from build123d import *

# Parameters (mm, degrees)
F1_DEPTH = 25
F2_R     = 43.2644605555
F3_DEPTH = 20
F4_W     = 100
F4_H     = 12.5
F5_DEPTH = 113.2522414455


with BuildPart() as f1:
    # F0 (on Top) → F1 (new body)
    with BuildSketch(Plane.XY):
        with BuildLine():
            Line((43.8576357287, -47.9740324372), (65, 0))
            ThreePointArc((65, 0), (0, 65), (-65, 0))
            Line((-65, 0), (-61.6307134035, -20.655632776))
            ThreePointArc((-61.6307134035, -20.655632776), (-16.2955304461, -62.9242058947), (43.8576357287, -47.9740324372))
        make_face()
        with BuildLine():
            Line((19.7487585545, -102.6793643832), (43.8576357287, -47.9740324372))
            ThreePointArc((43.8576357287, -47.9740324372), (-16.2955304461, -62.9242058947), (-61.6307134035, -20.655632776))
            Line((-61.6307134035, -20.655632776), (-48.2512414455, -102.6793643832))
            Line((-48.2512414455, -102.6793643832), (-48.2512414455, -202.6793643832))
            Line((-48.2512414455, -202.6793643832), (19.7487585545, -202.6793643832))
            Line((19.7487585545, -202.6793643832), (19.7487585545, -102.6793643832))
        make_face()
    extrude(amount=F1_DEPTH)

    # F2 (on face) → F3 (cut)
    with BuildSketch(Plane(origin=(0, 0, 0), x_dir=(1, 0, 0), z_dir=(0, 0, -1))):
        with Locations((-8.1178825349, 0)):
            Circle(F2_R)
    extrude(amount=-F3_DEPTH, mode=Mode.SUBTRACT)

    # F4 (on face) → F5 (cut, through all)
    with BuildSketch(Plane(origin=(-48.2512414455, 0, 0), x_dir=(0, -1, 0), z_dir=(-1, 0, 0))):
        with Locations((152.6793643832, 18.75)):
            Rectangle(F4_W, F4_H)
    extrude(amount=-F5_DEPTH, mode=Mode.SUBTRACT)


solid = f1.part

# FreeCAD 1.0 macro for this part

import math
import FreeCAD as App
import Part
import Sketcher
from FreeCAD import Vector
Q = App.Units.Quantity

doc = App.newDocument("Part")
body = doc.addObject("PartDesign::Body", "Body")

# Sketch on XY plane
sketch1 = body.newObject("Sketcher::SketchObject", "Sketch")
sketch1.AttachmentSupport = (doc.getObject("XY_Plane"), [""])
sketch1.MapMode = "FlatFace"
sketch1.addGeometry(Part.LineSegment(Vector(43.857636, -47.974032, 0), Vector(65, 0, 0)), False)
sketch1.addGeometry(Part.ArcOfCircle(Part.Circle(Vector(0, 0, 0), Vector(0, 0, 1), 65), math.radians(0), math.radians(180)), False)
sketch1.addGeometry(Part.LineSegment(Vector(-65, 0, 0), Vector(-61.630713, -20.655633, 0)), False)
sketch1.addGeometry(Part.LineSegment(Vector(-61.630713, -20.655633, 0), Vector(-48.251241, -102.679364, 0)), False)
sketch1.addGeometry(Part.LineSegment(Vector(-48.251241, -102.679364, 0), Vector(-48.251241, -202.679364, 0)), False)
sketch1.addGeometry(Part.LineSegment(Vector(-48.251241, -202.679364, 0), Vector(19.748759, -202.679364, 0)), False)
sketch1.addGeometry(Part.LineSegment(Vector(19.748759, -202.679364, 0), Vector(19.748759, -102.679364, 0)), False)
sketch1.addGeometry(Part.LineSegment(Vector(19.748759, -102.679364, 0), Vector(43.857636, -47.974032, 0)), False)
sketch1.addConstraint(Sketcher.Constraint("Coincident", 0, 2, 1, 1))
sketch1.addConstraint(Sketcher.Constraint("Coincident", 1, 2, 2, 1))
sketch1.addConstraint(Sketcher.Constraint("Coincident", 2, 2, 3, 1))
sketch1.addConstraint(Sketcher.Constraint("Coincident", 3, 2, 4, 1))
sketch1.addConstraint(Sketcher.Constraint("Coincident", 4, 2, 5, 1))
sketch1.addConstraint(Sketcher.Constraint("Coincident", 5, 2, 6, 1))
sketch1.addConstraint(Sketcher.Constraint("Coincident", 6, 2, 7, 1))
sketch1.addConstraint(Sketcher.Constraint("Coincident", 7, 2, 0, 1))
sketch1.addConstraint(Sketcher.Constraint("Vertical", 4))
sketch1.addConstraint(Sketcher.Constraint("Horizontal", 5))
sketch1.addConstraint(Sketcher.Constraint("Vertical", 6))
sketch1.addConstraint(Sketcher.Constraint("Coincident", 1, 3, -1, 1))
sketch1.addConstraint(Sketcher.Constraint("PointOnObject", 0, 2, -1))
sketch1.addConstraint(Sketcher.Constraint("PointOnObject", 1, 2, -1))
sketch1.addConstraint(Sketcher.Constraint("Parallel", 2, 3))
sketch1.addConstraint(Sketcher.Constraint("Parallel", 0, 7))
sketch1.addConstraint(Sketcher.Constraint("Horizontal", 3, 2, 6, 2))
sketch1.addConstraint(Sketcher.Constraint("Radius", 1, Q("65 mm")))
sketch1.addConstraint(Sketcher.Constraint("DistanceX", 5, 1, 5, 2, Q("68 mm")))
sketch1.addConstraint(Sketcher.Constraint("DistanceY", 4, 2, 4, 1, Q("100 mm")))
sketch1.addConstraint(Sketcher.Constraint("Distance", 7, Q("59.782199 mm")))
sketch1.addConstraint(Sketcher.Constraint("DistanceY", 7, 2, 2, 2, Q("27.3184 mm")))
sketch1.addConstraint(Sketcher.Constraint("Distance", 0, Q("52.426209 mm")))
sketch1.addConstraint(Sketcher.Constraint("Distance", 3, Q("83.107778 mm")))
pad1 = body.newObject("PartDesign::Pad", "Pad")
pad1.Profile = sketch1
pad1.Length = 25

# Sketch on XY plane
sketch2 = body.newObject("Sketcher::SketchObject", "Sketch001")
sketch2.AttachmentSupport = (doc.getObject("XY_Plane"), [""])
sketch2.MapMode = "FlatFace"
sketch2.addGeometry(Part.Circle(Vector(-8.117883, 0, 0), Vector(0, 0, 1), 43.264461), False)
sketch2.addConstraint(Sketcher.Constraint("PointOnObject", 0, 3, -1))
sketch2.addConstraint(Sketcher.Constraint("Diameter", 0, Q("86.528921 mm")))
sketch2.addConstraint(Sketcher.Constraint("DistanceX", 0, 3, -1, 1, Q("8.117883 mm")))
pocket1 = body.newObject("PartDesign::Pocket", "Pocket")
pocket1.Profile = sketch2
pocket1.Length = 20
pocket1.Reversed = True

# Sketch on YZ plane
sketch3 = body.newObject("Sketcher::SketchObject", "Sketch002")
sketch3.AttachmentSupport = (doc.getObject("YZ_Plane"), [""])
sketch3.MapMode = "FlatFace"
sketch3.AttachmentOffset = App.Placement(Vector(0, 0, -48.251241), App.Rotation())
sketch3.addGeometry(Part.LineSegment(Vector(-102.679364, 25, 0), Vector(-102.679364, 12.5, 0)), False)
sketch3.addGeometry(Part.LineSegment(Vector(-102.679364, 12.5, 0), Vector(-202.679364, 12.5, 0)), False)
sketch3.addGeometry(Part.LineSegment(Vector(-202.679364, 12.5, 0), Vector(-202.679364, 25, 0)), False)
sketch3.addGeometry(Part.LineSegment(Vector(-202.679364, 25, 0), Vector(-102.679364, 25, 0)), False)
sketch3.addConstraint(Sketcher.Constraint("Coincident", 0, 2, 1, 1))
sketch3.addConstraint(Sketcher.Constraint("Coincident", 1, 2, 2, 1))
sketch3.addConstraint(Sketcher.Constraint("Coincident", 2, 2, 3, 1))
sketch3.addConstraint(Sketcher.Constraint("Coincident", 3, 2, 0, 1))
sketch3.addConstraint(Sketcher.Constraint("Vertical", 0))
sketch3.addConstraint(Sketcher.Constraint("Horizontal", 1))
sketch3.addConstraint(Sketcher.Constraint("Vertical", 2))
sketch3.addConstraint(Sketcher.Constraint("Horizontal", 3))
sketch3.addConstraint(Sketcher.Constraint("DistanceX", 1, 2, 1, 1, Q("100 mm")))
sketch3.addConstraint(Sketcher.Constraint("DistanceY", 0, 2, 0, 1, Q("12.5 mm")))
sketch3.addConstraint(Sketcher.Constraint("DistanceY", -1, 1, 2, 2, Q("25 mm")))
sketch3.addConstraint(Sketcher.Constraint("DistanceX", 0, 2, -1, 1, Q("102.679364 mm")))
pocket2 = body.newObject("PartDesign::Pocket", "Pocket001")
pocket2.Profile = sketch3
pocket2.Type = "ThroughAll"
pocket2.Reversed = True

doc.recompute()
